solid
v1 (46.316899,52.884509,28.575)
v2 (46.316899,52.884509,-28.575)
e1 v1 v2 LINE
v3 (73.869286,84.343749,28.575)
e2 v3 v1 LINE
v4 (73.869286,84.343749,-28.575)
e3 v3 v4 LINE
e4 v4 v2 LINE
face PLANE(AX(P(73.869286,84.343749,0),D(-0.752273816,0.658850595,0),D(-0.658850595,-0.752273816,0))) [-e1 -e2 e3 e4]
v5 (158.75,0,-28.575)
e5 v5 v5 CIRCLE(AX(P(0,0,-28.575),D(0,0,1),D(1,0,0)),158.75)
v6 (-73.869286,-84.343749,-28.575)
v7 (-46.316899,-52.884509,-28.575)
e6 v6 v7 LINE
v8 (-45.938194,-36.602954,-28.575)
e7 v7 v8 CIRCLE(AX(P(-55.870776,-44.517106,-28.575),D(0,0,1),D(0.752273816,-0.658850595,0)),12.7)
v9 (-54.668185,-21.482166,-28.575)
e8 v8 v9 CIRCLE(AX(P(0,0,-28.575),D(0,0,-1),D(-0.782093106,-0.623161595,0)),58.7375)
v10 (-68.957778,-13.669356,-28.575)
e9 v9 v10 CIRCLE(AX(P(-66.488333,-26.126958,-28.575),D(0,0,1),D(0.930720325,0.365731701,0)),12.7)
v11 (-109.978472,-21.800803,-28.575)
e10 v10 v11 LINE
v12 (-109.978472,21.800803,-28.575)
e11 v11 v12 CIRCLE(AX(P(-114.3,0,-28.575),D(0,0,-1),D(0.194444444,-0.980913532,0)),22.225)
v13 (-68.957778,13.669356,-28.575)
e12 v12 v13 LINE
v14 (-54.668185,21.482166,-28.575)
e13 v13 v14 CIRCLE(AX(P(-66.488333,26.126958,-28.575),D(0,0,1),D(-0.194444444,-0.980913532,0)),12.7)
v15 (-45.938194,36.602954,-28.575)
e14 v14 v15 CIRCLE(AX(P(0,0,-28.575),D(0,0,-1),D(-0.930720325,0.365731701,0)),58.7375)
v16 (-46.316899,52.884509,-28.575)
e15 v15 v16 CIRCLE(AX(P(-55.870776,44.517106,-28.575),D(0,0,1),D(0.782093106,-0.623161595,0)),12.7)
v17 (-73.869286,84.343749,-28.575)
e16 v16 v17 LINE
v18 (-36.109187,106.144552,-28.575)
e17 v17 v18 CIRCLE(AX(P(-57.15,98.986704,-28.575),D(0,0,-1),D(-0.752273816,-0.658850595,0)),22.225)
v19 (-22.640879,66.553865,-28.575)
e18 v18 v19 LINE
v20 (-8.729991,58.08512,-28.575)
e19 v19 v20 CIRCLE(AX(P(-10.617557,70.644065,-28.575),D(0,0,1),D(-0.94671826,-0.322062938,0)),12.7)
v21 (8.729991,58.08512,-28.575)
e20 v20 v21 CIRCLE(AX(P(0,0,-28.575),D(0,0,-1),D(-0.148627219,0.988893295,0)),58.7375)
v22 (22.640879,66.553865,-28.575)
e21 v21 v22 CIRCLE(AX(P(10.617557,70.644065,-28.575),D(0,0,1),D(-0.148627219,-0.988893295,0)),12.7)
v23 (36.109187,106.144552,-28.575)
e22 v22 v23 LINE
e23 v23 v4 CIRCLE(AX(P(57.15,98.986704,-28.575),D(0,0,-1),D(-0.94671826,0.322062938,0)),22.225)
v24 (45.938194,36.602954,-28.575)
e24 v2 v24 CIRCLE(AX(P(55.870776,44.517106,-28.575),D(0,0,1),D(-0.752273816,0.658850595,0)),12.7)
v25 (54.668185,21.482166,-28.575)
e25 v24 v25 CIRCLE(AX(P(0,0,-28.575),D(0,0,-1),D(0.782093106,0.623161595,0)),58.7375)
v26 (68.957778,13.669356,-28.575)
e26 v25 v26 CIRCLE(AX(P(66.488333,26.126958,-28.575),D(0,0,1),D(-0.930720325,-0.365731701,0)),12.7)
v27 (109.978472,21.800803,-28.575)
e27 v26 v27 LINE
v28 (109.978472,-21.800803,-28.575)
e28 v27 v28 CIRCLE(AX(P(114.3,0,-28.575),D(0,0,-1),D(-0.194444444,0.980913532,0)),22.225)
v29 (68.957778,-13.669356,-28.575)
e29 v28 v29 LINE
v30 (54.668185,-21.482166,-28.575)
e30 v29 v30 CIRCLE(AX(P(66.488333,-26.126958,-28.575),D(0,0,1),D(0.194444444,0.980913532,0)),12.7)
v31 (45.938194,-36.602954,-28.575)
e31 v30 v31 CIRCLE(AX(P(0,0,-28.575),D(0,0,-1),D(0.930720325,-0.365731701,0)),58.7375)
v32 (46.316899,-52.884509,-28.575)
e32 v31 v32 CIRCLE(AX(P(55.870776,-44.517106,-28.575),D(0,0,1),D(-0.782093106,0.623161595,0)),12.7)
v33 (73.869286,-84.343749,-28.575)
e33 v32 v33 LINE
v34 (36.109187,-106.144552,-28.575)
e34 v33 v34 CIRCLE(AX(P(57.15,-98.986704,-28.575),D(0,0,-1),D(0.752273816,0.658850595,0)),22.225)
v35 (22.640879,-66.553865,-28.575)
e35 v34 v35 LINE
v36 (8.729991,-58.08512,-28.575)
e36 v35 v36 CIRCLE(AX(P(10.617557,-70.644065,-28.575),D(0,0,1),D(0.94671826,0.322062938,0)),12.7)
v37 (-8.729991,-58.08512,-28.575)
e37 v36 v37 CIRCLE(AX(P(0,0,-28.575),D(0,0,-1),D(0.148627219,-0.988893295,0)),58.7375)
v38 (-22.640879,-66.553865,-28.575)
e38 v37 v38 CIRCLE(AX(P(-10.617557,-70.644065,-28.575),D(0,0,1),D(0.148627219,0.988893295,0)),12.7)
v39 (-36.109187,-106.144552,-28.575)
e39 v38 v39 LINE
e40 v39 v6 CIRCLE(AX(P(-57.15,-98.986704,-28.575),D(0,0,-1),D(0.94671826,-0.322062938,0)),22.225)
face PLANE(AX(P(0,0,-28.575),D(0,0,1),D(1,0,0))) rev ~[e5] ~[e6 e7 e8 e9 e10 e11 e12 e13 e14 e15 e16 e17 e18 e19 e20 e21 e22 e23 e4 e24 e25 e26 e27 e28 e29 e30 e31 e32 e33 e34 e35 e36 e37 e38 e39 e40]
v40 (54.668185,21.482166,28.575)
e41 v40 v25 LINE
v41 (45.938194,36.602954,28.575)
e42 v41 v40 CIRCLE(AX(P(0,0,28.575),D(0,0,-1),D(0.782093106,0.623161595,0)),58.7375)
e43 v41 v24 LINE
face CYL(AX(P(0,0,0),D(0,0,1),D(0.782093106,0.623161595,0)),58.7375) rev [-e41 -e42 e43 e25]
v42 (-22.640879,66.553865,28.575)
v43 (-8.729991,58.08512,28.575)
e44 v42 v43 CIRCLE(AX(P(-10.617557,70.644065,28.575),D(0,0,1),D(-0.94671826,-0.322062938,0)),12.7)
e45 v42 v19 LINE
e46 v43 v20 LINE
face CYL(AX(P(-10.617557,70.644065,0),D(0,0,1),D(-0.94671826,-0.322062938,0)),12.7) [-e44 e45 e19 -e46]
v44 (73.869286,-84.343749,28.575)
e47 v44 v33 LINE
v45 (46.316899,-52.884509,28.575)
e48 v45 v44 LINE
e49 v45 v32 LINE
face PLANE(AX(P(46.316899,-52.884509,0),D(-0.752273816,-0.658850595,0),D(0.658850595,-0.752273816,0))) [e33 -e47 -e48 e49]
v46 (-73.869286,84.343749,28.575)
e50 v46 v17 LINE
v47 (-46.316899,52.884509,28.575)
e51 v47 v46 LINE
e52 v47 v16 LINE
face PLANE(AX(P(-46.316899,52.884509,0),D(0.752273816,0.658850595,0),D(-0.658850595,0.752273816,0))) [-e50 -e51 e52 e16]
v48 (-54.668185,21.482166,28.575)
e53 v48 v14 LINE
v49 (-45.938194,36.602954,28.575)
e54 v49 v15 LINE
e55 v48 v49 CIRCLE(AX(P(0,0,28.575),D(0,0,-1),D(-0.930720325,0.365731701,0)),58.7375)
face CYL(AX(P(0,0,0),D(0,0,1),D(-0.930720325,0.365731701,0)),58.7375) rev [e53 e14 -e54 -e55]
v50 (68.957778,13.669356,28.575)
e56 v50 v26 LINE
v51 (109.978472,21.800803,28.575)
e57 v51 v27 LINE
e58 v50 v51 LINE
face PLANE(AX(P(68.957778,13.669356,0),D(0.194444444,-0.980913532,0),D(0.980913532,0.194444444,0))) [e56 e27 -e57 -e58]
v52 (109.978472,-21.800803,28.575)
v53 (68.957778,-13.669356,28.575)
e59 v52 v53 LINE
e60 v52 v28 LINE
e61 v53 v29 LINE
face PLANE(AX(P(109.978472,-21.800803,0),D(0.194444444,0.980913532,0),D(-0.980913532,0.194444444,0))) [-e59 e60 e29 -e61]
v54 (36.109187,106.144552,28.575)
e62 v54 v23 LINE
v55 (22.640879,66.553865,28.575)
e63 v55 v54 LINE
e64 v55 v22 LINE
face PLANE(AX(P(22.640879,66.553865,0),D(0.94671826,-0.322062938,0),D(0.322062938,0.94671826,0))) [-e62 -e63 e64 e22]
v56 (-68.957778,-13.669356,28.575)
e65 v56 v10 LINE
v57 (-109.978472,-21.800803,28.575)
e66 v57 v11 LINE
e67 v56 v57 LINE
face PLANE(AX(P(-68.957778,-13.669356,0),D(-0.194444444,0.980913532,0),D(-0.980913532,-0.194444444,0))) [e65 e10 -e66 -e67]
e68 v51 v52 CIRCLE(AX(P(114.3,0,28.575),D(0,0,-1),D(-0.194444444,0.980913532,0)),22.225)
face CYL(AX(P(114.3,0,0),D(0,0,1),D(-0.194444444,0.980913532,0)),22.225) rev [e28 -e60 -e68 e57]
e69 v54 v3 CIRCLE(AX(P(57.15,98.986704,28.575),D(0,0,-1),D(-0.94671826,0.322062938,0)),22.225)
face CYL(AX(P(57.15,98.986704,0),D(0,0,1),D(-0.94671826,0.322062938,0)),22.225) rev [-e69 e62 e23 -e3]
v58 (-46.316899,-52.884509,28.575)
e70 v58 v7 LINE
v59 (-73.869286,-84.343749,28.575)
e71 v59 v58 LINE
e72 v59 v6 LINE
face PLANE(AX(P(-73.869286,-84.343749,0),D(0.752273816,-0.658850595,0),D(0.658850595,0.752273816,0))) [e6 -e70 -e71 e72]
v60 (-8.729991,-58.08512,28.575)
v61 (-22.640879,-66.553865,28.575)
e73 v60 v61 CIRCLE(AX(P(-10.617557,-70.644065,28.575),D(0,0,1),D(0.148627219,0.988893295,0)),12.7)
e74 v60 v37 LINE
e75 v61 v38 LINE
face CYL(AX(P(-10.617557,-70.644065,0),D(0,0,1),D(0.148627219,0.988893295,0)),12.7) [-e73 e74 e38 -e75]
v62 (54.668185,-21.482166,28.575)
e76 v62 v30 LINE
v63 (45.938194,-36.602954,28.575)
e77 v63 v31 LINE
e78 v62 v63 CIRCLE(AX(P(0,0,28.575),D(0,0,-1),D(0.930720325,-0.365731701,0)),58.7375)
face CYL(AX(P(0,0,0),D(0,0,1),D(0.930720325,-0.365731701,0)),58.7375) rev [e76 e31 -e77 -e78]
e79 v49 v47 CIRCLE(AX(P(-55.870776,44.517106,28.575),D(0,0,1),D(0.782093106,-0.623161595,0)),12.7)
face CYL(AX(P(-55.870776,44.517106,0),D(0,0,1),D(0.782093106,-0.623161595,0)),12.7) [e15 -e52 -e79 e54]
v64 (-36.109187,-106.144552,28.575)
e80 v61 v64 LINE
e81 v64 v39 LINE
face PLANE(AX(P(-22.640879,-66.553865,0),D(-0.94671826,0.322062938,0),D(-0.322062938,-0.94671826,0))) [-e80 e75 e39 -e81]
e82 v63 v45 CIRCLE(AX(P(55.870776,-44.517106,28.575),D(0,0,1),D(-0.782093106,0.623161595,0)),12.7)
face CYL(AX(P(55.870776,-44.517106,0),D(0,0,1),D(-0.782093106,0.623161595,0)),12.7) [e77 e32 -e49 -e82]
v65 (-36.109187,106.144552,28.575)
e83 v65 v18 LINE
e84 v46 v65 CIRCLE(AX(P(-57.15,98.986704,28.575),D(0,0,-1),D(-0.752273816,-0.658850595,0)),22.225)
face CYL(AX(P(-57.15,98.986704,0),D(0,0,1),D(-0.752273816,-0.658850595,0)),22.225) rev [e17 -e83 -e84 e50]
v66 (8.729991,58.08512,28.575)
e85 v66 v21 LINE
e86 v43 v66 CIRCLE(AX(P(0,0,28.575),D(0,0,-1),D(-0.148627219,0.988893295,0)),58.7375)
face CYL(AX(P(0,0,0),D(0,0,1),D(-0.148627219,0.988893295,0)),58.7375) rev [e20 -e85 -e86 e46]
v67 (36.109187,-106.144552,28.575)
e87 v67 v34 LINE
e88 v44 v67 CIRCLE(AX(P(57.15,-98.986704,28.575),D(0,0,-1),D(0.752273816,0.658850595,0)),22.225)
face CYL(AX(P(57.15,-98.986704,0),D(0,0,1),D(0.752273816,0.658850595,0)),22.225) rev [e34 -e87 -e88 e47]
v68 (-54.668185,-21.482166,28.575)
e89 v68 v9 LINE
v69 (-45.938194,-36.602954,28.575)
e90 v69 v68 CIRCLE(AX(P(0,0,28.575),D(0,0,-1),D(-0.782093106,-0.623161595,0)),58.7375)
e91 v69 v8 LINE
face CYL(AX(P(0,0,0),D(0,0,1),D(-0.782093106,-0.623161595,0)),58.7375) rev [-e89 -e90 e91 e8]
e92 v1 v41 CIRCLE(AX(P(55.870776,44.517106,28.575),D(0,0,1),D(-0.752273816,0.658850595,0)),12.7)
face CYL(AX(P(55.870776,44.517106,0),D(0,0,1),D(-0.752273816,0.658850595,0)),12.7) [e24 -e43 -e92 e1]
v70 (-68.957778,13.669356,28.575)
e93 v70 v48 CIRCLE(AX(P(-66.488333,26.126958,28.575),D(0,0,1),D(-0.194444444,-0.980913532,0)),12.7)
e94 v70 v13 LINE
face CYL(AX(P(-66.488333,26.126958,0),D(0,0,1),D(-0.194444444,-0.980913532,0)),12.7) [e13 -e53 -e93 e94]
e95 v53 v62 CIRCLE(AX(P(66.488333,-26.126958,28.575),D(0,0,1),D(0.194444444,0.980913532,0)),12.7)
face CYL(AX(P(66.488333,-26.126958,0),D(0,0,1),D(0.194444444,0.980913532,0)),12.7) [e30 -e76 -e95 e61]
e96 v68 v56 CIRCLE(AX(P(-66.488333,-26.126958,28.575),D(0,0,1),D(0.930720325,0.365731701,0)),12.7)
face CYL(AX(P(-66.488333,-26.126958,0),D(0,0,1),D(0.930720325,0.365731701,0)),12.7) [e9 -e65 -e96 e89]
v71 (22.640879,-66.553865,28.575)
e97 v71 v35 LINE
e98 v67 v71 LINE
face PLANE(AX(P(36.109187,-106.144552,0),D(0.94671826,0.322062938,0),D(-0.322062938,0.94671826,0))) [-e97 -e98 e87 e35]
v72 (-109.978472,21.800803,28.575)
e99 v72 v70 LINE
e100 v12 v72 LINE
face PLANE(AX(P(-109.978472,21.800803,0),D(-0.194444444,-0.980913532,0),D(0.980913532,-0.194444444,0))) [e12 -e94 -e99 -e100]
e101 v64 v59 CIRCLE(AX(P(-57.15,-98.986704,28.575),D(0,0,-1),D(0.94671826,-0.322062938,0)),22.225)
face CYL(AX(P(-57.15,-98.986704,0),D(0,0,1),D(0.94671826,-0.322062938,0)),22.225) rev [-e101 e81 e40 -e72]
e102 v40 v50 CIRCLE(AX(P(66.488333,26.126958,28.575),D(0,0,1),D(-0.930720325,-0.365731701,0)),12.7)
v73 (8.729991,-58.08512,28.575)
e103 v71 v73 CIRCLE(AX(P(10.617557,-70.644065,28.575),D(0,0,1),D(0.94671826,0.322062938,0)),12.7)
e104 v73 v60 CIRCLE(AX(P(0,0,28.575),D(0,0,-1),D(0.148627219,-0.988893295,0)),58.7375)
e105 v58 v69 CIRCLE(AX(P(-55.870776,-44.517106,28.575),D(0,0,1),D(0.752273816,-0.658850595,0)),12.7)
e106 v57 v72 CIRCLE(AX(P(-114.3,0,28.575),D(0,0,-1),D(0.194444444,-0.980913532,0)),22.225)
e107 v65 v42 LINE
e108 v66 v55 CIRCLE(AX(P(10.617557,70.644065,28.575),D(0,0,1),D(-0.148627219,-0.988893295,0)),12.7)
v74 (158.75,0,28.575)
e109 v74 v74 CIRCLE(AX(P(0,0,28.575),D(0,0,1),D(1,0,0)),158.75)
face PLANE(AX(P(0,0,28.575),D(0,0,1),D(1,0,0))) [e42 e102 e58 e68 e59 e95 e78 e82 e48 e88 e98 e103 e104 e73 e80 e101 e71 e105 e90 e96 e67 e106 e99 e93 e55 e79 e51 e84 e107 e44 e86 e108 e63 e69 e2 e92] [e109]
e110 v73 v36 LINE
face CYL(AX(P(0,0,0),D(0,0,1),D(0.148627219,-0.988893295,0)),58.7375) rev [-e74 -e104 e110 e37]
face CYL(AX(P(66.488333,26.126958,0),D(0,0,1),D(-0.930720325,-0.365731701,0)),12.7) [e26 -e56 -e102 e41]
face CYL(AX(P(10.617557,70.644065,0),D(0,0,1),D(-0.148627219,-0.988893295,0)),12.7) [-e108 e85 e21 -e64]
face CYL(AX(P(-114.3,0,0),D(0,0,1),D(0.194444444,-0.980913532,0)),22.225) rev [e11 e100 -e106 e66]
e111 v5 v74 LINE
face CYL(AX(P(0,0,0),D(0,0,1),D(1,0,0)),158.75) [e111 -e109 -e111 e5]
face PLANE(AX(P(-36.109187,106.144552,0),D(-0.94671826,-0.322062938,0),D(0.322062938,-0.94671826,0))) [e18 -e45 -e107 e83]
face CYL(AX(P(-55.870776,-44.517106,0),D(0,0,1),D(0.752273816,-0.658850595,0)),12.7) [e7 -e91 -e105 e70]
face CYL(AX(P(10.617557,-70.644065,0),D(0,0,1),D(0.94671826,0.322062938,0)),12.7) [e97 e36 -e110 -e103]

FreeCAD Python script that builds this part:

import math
import FreeCAD as App
import Part
import Sketcher
from FreeCAD import Vector
Q = App.Units.Quantity

doc = App.newDocument("Part")
body = doc.addObject("PartDesign::Body", "Body")

sketch1 = body.newObject("Sketcher::SketchObject", "Sketch")
sketch1.AttachmentSupport = (doc.getObject("XY_Plane"), [""])
sketch1.MapMode = "FlatFace"
sketch1.addGeometry(Part.Circle(Vector(0, 0, 0), Vector(0, 0, 1), 159), False)
sketch1.addGeometry(Part.ArcOfCircle(Part.Circle(Vector(-114, 0, 0), Vector(0, 0, 1), 22), math.radians(79), math.radians(281)), False)
sketch1.addGeometry(Part.LineSegment(Vector(-110, 22, 0), Vector(-69, 14, 0)), False)
sketch1.addGeometry(Part.ArcOfCircle(Part.Circle(Vector(-66, 26, 0), Vector(0, 0, 1), 13), math.radians(-101), math.radians(-21)), False)
sketch1.addGeometry(Part.ArcOfCircle(Part.Circle(Vector(0, 0, 0), Vector(0, 0, 1), 59), math.radians(141.45), math.radians(158.55)), False)
sketch1.addGeometry(Part.ArcOfCircle(Part.Circle(Vector(-56, 45, 0), Vector(0, 0, 1), 13), math.radians(-39), math.radians(41)), False)
sketch1.addGeometry(Part.LineSegment(Vector(-46, 53, 0), Vector(-74, 84, 0)), False)
sketch1.addGeometry(Part.ArcOfCircle(Part.Circle(Vector(-57, 99, 0), Vector(0, 0, 1), 22), math.radians(19), math.radians(221)), False)
sketch1.addGeometry(Part.LineSegment(Vector(-36, 106, 0), Vector(-23, 67, 0)), False)
sketch1.addGeometry(Part.ArcOfCircle(Part.Circle(Vector(-11, 71, 0), Vector(0, 0, 1), 13), math.radians(-161), math.radians(-81)), False)
sketch1.addGeometry(Part.ArcOfCircle(Part.Circle(Vector(0, 0, 0), Vector(0, 0, 1), 59), math.radians(81.45), math.radians(98.55)), False)
sketch1.addGeometry(Part.ArcOfCircle(Part.Circle(Vector(11, 71, 0), Vector(0, 0, 1), 13), math.radians(-99), math.radians(-19)), False)
sketch1.addGeometry(Part.LineSegment(Vector(23, 67, 0), Vector(36, 106, 0)), False)
sketch1.addGeometry(Part.ArcOfCircle(Part.Circle(Vector(57, 99, 0), Vector(0, 0, 1), 22), math.radians(-41), math.radians(161)), False)
sketch1.addGeometry(Part.LineSegment(Vector(74, 84, 0), Vector(46, 53, 0)), False)
sketch1.addGeometry(Part.ArcOfCircle(Part.Circle(Vector(56, 45, 0), Vector(0, 0, 1), 13), math.radians(139), math.radians(219)), False)
sketch1.addGeometry(Part.ArcOfCircle(Part.Circle(Vector(0, 0, 0), Vector(0, 0, 1), 59), math.radians(21.45), math.radians(38.55)), False)
sketch1.addGeometry(Part.ArcOfCircle(Part.Circle(Vector(66, 26, 0), Vector(0, 0, 1), 13), math.radians(-159), math.radians(-79)), False)
sketch1.addGeometry(Part.LineSegment(Vector(69, 14, 0), Vector(110, 22, 0)), False)
sketch1.addGeometry(Part.ArcOfCircle(Part.Circle(Vector(114, 0, 0), Vector(0, 0, 1), 22), math.radians(-101), math.radians(101)), False)
sketch1.addGeometry(Part.LineSegment(Vector(110, -22, 0), Vector(69, -14, 0)), False)
sketch1.addGeometry(Part.ArcOfCircle(Part.Circle(Vector(66, -26, 0), Vector(0, 0, 1), 13), math.radians(79), math.radians(159)), False)
sketch1.addGeometry(Part.ArcOfCircle(Part.Circle(Vector(0, 0, 0), Vector(0, 0, 1), 59), math.radians(-38.55), math.radians(-21.45)), False)
sketch1.addGeometry(Part.ArcOfCircle(Part.Circle(Vector(56, -45, 0), Vector(0, 0, 1), 13), math.radians(141), math.radians(221)), False)
sketch1.addGeometry(Part.LineSegment(Vector(46, -53, 0), Vector(74, -84, 0)), False)
sketch1.addGeometry(Part.ArcOfCircle(Part.Circle(Vector(57, -99, 0), Vector(0, 0, 1), 22), math.radians(-161), math.radians(41)), False)
sketch1.addGeometry(Part.LineSegment(Vector(36, -106, 0), Vector(23, -67, 0)), False)
sketch1.addGeometry(Part.ArcOfCircle(Part.Circle(Vector(11, -71, 0), Vector(0, 0, 1), 13), math.radians(19), math.radians(99)), False)
sketch1.addGeometry(Part.ArcOfCircle(Part.Circle(Vector(0, 0, 0), Vector(0, 0, 1), 59), math.radians(-98.55), math.radians(-81.45)), False)
sketch1.addGeometry(Part.ArcOfCircle(Part.Circle(Vector(-11, -71, 0), Vector(0, 0, 1), 13), math.radians(81), math.radians(161)), False)
sketch1.addGeometry(Part.LineSegment(Vector(-23, -67, 0), Vector(-36, -106, 0)), False)
sketch1.addGeometry(Part.ArcOfCircle(Part.Circle(Vector(-57, -99, 0), Vector(0, 0, 1), 22), math.radians(139), math.radians(341)), False)
sketch1.addGeometry(Part.LineSegment(Vector(-74, -84, 0), Vector(-46, -53, 0)), False)
sketch1.addGeometry(Part.ArcOfCircle(Part.Circle(Vector(-56, -45, 0), Vector(0, 0, 1), 13), math.radians(-41), math.radians(39)), False)
sketch1.addGeometry(Part.ArcOfCircle(Part.Circle(Vector(0, 0, 0), Vector(0, 0, 1), 59), math.radians(-158.55), math.radians(-141.45)), False)
sketch1.addGeometry(Part.ArcOfCircle(Part.Circle(Vector(-66, -26, 0), Vector(0, 0, 1), 13), math.radians(21), math.radians(101)), False)
sketch1.addGeometry(Part.LineSegment(Vector(-69, -14, 0), Vector(-110, -22, 0)), False)
sketch1.addConstraint(Sketcher.Constraint("Tangent", 1, 1, 2, 1))
sketch1.addConstraint(Sketcher.Constraint("Tangent", 2, 2, 3, 1))
sketch1.addConstraint(Sketcher.Constraint("Tangent", 3, 2, 4, 2))
sketch1.addConstraint(Sketcher.Constraint("Tangent", 4, 1, 5, 1))
sketch1.addConstraint(Sketcher.Constraint("Tangent", 5, 2, 6, 1))
sketch1.addConstraint(Sketcher.Constraint("Tangent", 6, 2, 7, 2))
sketch1.addConstraint(Sketcher.Constraint("Tangent", 7, 1, 8, 1))
sketch1.addConstraint(Sketcher.Constraint("Tangent", 8, 2, 9, 1))
sketch1.addConstraint(Sketcher.Constraint("Tangent", 9, 2, 10, 2))
sketch1.addConstraint(Sketcher.Constraint("Tangent", 10, 1, 11, 1))
sketch1.addConstraint(Sketcher.Constraint("Tangent", 11, 2, 12, 1))
sketch1.addConstraint(Sketcher.Constraint("Tangent", 12, 2, 13, 2))
sketch1.addConstraint(Sketcher.Constraint("Tangent", 13, 1, 14, 1))
sketch1.addConstraint(Sketcher.Constraint("Tangent", 14, 2, 15, 1))
sketch1.addConstraint(Sketcher.Constraint("Tangent", 15, 2, 16, 2))
sketch1.addConstraint(Sketcher.Constraint("Tangent", 16, 1, 17, 1))
sketch1.addConstraint(Sketcher.Constraint("Tangent", 17, 2, 18, 1))
sketch1.addConstraint(Sketcher.Constraint("Tangent", 18, 2, 19, 2))
sketch1.addConstraint(Sketcher.Constraint("Tangent", 19, 1, 20, 1))
sketch1.addConstraint(Sketcher.Constraint("Tangent", 20, 2, 21, 1))
sketch1.addConstraint(Sketcher.Constraint("Tangent", 21, 2, 22, 2))
sketch1.addConstraint(Sketcher.Constraint("Tangent", 22, 1, 23, 1))
sketch1.addConstraint(Sketcher.Constraint("Tangent", 23, 2, 24, 1))
sketch1.addConstraint(Sketcher.Constraint("Tangent", 24, 2, 25, 2))
sketch1.addConstraint(Sketcher.Constraint("Tangent", 25, 1, 26, 1))
sketch1.addConstraint(Sketcher.Constraint("Tangent", 26, 2, 27, 1))
sketch1.addConstraint(Sketcher.Constraint("Tangent", 27, 2, 28, 2))
sketch1.addConstraint(Sketcher.Constraint("Tangent", 28, 1, 29, 1))
sketch1.addConstraint(Sketcher.Constraint("Tangent", 29, 2, 30, 1))
sketch1.addConstraint(Sketcher.Constraint("Tangent", 30, 2, 31, 2))
sketch1.addConstraint(Sketcher.Constraint("Tangent", 31, 1, 32, 1))
sketch1.addConstraint(Sketcher.Constraint("Tangent", 32, 2, 33, 1))
sketch1.addConstraint(Sketcher.Constraint("Tangent", 33, 2, 34, 2))
sketch1.addConstraint(Sketcher.Constraint("Tangent", 34, 1, 35, 1))
sketch1.addConstraint(Sketcher.Constraint("Tangent", 35, 2, 36, 1))
sketch1.addConstraint(Sketcher.Constraint("Tangent", 36, 2, 1, 2))
sketch1.addConstraint(Sketcher.Constraint("Coincident", 0, 3, -1, 1))
sketch1.addConstraint(Sketcher.Constraint("Coincident", 4, 3, -1, 1))
sketch1.addConstraint(Sketcher.Constraint("Coincident", 10, 3, -1, 1))
sketch1.addConstraint(Sketcher.Constraint("Coincident", 16, 3, -1, 1))
sketch1.addConstraint(Sketcher.Constraint("Coincident", 22, 3, -1, 1))
sketch1.addConstraint(Sketcher.Constraint("Coincident", 28, 3, -1, 1))
sketch1.addConstraint(Sketcher.Constraint("Coincident", 34, 3, -1, 1))
sketch1.addConstraint(Sketcher.Constraint("Equal", 3, 5))
sketch1.addConstraint(Sketcher.Constraint("Equal", 1, 7))
sketch1.addConstraint(Sketcher.Constraint("Equal", 5, 9))
sketch1.addConstraint(Sketcher.Constraint("Equal", 4, 10))
sketch1.addConstraint(Sketcher.Constraint("Equal", 9, 11))
sketch1.addConstraint(Sketcher.Constraint("Equal", 7, 13))
sketch1.addConstraint(Sketcher.Constraint("Equal", 11, 15))
sketch1.addConstraint(Sketcher.Constraint("Equal", 10, 16))
sketch1.addConstraint(Sketcher.Constraint("Equal", 15, 17))
sketch1.addConstraint(Sketcher.Constraint("Equal", 13, 19))
sketch1.addConstraint(Sketcher.Constraint("Equal", 17, 21))
sketch1.addConstraint(Sketcher.Constraint("Equal", 16, 22))
sketch1.addConstraint(Sketcher.Constraint("Equal", 21, 23))
sketch1.addConstraint(Sketcher.Constraint("Equal", 19, 25))
sketch1.addConstraint(Sketcher.Constraint("Equal", 23, 27))
sketch1.addConstraint(Sketcher.Constraint("Equal", 22, 28))
sketch1.addConstraint(Sketcher.Constraint("Equal", 27, 29))
sketch1.addConstraint(Sketcher.Constraint("Equal", 25, 31))
sketch1.addConstraint(Sketcher.Constraint("Equal", 29, 33))
sketch1.addConstraint(Sketcher.Constraint("Equal", 28, 34))
sketch1.addConstraint(Sketcher.Constraint("Equal", 33, 35))
sketch1.addConstraint(Sketcher.Constraint("Symmetric", 1, 3, 19, 3, -1, 1))
sketch1.addConstraint(Sketcher.Constraint("Symmetric", 7, 3, 25, 3, -1, 1))
sketch1.addConstraint(Sketcher.Constraint("Symmetric", 13, 3, 31, 3, -1, 1))
sketch1.addConstraint(Sketcher.Constraint("Symmetric", 7, 3, 13, 3, -2))
sketch1.addConstraint(Sketcher.Constraint("Symmetric", 2, 2, 17, 2, -2))
sketch1.addConstraint(Sketcher.Constraint("Parallel", 2, 20))
sketch1.addConstraint(Sketcher.Constraint("Parallel", 6, 24))
sketch1.addConstraint(Sketcher.Constraint("Parallel", 8, 26))
sketch1.addConstraint(Sketcher.Constraint("Parallel", 12, 30))
sketch1.addConstraint(Sketcher.Constraint("Parallel", 14, 32))
sketch1.addConstraint(Sketcher.Constraint("Parallel", 18, 36))
sketch1.addConstraint(Sketcher.Constraint("Horizontal", 9, 3, 11, 3))
sketch1.addConstraint(Sketcher.Constraint("Horizontal", 5, 3, 15, 3))
sketch1.addConstraint(Sketcher.Constraint("Equal", 2, 6))
sketch1.addConstraint(Sketcher.Constraint("Equal", 6, 8))
sketch1.addConstraint(Sketcher.Constraint("Diameter", 0, Q("12.5 in")))
sketch1.addConstraint(Sketcher.Constraint("Radius", 3, Q("0.5 in")))
sketch1.addConstraint(Sketcher.Constraint("Radius", 1, Q("0.875 in")))
sketch1.addConstraint(Sketcher.Constraint("Radius", 4, Q("2.3125 in")))
sketch1.addConstraint(Sketcher.Constraint("DistanceX", 1, 3, -1, 1, Q("4.5 in")))
sketch1.addConstraint(Sketcher.Constraint("DistanceX", 7, 3, -1, 1, Q("2.25 in")))
sketch1.addConstraint(Sketcher.Constraint("DistanceX", 5, 2, -1, 1, Q("1.8235 in")))
sketch1.addConstraint(Sketcher.Constraint("Distance", 2, 41.818869))
pad1 = body.newObject("PartDesign::Pad", "Pad")
pad1.Profile = sketch1
pad1.Length = Q("2.25 in")
pad1.Midplane = True

doc.recompute()
